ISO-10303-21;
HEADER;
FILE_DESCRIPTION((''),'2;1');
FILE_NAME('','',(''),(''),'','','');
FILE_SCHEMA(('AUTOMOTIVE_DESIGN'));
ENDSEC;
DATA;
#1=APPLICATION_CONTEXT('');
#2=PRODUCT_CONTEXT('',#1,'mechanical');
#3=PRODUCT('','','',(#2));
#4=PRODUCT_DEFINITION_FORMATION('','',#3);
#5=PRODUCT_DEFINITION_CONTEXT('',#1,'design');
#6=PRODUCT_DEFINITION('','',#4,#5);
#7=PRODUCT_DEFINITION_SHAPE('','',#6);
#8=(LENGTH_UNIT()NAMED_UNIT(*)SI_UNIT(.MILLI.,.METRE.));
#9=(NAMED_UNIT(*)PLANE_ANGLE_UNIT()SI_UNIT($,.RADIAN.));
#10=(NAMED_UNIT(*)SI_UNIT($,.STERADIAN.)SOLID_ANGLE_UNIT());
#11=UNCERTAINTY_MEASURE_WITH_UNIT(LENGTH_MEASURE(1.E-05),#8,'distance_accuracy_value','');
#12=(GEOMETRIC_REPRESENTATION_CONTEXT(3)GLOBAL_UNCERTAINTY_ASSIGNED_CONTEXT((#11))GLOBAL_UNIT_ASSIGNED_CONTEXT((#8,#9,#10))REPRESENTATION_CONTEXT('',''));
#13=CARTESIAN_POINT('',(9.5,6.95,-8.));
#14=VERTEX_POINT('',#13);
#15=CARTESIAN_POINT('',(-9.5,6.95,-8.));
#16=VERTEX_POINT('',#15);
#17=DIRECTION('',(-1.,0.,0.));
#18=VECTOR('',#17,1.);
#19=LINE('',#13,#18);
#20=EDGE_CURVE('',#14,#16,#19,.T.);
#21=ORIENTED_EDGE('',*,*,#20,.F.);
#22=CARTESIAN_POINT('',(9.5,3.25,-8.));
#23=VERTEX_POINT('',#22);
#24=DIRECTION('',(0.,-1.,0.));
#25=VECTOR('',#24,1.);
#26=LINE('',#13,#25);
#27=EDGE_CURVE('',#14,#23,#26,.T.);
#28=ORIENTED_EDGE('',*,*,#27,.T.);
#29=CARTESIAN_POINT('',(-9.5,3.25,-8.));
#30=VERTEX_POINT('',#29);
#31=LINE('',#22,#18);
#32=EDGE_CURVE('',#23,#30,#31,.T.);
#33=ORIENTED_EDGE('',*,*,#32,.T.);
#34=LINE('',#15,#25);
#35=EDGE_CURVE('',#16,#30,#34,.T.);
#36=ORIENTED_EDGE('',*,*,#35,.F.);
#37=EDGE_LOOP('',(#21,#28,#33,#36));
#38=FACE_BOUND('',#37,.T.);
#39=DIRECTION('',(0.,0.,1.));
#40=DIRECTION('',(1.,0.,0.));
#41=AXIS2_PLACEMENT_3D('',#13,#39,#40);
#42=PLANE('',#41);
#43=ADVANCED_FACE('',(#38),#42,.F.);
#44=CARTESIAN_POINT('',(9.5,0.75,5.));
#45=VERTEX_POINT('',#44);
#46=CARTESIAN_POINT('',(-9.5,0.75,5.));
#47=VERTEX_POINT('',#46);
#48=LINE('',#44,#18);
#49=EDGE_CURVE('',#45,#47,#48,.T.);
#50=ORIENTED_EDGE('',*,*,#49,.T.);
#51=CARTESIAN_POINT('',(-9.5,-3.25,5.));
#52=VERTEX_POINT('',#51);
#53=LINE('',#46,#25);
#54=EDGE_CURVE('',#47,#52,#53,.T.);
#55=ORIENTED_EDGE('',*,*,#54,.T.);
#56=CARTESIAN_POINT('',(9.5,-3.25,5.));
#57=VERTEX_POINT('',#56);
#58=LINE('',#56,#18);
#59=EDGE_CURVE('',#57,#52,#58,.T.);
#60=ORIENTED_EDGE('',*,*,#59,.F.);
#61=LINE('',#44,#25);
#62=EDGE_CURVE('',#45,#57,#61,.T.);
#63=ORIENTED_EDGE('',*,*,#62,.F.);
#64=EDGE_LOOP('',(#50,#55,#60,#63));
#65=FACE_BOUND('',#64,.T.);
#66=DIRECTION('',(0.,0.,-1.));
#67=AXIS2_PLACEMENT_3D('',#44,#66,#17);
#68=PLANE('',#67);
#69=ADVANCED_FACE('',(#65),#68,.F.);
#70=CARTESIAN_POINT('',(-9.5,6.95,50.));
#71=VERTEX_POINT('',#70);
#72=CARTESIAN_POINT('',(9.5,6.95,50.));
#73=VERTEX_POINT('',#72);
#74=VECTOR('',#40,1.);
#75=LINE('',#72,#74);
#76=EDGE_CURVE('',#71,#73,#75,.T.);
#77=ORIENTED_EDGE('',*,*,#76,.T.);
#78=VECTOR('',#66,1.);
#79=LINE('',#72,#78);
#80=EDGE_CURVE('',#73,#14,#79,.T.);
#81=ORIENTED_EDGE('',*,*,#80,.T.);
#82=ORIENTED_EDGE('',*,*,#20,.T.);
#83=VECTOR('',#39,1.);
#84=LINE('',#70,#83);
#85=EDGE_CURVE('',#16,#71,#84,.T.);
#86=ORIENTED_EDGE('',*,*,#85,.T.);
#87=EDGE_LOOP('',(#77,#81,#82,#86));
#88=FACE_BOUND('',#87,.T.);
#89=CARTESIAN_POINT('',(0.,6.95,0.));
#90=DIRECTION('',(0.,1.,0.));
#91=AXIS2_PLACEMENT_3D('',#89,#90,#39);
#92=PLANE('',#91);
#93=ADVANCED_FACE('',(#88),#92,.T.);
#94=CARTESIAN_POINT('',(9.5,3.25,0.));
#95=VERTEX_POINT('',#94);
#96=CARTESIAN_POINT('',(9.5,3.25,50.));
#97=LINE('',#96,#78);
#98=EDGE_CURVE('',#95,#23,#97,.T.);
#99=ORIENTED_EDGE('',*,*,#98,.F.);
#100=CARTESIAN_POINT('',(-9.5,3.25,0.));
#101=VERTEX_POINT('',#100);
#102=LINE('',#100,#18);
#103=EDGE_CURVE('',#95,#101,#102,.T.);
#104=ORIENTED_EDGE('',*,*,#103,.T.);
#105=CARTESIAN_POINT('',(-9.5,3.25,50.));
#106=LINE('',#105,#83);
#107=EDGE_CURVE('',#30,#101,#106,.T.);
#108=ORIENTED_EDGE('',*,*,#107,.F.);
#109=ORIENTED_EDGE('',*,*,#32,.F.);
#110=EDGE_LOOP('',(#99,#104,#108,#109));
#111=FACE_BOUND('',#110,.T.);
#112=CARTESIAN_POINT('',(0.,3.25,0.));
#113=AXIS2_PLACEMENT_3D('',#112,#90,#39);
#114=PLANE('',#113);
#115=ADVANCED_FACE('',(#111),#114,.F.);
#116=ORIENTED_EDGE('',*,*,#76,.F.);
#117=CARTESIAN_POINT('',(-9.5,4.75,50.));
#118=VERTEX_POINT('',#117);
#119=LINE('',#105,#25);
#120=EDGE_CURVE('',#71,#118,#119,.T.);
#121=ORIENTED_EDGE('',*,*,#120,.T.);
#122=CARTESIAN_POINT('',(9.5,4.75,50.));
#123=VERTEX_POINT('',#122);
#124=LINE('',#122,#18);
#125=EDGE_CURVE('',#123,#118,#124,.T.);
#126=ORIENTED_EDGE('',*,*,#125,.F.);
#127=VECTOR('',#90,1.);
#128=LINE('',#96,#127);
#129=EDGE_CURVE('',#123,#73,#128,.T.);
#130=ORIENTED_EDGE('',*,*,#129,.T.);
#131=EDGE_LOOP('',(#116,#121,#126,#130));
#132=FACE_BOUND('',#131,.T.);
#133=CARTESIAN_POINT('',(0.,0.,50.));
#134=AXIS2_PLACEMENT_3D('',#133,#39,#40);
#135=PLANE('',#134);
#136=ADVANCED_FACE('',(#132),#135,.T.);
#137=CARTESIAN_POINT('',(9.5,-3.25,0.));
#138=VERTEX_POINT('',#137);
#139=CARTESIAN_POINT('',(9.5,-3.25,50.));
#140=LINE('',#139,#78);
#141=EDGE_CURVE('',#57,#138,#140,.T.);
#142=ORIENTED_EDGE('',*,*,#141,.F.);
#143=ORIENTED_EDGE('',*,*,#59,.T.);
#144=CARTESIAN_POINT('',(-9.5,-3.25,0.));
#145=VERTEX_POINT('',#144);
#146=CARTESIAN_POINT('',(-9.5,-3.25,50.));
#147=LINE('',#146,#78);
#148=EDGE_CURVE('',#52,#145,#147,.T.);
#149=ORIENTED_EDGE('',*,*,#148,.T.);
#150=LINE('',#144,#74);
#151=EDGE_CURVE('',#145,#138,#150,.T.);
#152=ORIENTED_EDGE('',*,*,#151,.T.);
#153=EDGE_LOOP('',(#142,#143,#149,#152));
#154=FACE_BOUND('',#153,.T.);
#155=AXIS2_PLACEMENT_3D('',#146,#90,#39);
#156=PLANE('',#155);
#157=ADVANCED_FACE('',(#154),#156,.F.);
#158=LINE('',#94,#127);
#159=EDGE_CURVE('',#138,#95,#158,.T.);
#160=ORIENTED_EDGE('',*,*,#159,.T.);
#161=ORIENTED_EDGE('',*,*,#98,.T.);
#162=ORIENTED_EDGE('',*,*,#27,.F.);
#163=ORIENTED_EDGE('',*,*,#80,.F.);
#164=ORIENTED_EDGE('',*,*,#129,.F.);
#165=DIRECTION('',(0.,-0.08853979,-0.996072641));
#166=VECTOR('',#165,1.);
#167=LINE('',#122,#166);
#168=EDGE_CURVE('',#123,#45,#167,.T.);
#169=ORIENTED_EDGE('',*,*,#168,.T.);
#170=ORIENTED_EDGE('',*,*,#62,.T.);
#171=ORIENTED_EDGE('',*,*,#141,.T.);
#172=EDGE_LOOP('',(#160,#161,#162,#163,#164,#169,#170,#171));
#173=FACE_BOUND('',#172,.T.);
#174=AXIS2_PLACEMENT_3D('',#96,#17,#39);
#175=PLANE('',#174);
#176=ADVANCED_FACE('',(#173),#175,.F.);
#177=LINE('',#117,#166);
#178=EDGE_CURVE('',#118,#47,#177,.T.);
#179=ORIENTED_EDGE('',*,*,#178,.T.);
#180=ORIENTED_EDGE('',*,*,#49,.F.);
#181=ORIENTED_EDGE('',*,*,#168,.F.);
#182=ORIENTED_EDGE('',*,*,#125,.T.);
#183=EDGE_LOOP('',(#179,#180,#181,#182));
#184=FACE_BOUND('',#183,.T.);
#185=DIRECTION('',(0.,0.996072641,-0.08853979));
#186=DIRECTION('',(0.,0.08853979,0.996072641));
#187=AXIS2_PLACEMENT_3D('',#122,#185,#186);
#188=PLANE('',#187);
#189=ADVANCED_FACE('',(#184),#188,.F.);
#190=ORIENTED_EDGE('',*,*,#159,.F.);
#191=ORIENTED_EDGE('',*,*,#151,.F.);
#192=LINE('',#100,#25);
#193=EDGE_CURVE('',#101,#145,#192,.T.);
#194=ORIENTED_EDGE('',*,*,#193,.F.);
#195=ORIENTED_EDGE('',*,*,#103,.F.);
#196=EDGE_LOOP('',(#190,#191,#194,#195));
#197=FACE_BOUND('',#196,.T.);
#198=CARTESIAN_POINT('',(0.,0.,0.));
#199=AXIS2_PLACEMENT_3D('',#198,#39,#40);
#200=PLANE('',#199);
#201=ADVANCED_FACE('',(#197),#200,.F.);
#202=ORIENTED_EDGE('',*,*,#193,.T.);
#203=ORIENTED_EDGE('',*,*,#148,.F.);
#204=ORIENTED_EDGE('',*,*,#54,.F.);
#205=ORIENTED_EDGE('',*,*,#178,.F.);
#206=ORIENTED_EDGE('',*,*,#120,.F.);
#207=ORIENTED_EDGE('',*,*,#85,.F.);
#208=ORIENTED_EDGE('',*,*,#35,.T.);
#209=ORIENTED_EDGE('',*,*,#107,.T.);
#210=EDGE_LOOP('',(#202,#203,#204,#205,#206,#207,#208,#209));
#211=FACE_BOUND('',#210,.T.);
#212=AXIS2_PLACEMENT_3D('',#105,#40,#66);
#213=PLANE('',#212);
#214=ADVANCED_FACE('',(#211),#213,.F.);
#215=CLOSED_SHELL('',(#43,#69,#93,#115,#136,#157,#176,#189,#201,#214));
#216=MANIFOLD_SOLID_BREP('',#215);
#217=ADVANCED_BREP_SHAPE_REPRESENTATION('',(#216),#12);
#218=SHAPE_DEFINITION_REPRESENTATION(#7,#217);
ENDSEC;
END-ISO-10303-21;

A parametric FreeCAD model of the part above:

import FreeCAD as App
import Part
import Sketcher
from FreeCAD import Vector


def add_polygon(sketch, points):
    """Adds a closed chain of lines whose ends are joined by coincident constraints."""
    first, n = sketch.GeometryCount, len(points)
    for a, b in zip(points, points[1:] + points[:1]):
        sketch.addGeometry(Part.LineSegment(App.Vector(*a, 0), App.Vector(*b, 0)), False)
    for i in range(n):
        sketch.addConstraint(Sketcher.Constraint("Coincident", first + i, 2, first + (i + 1) % n, 1))

doc = App.newDocument("Part")
body = doc.addObject("PartDesign::Body", "Body")

# Sketch on XY plane
sketch1 = body.newObject("Sketcher::SketchObject", "Sketch")
sketch1.AttachmentSupport = (doc.getObject("XY_Plane"), [""])
sketch1.MapMode = "FlatFace"
add_polygon(sketch1, [(-9.5, 3.25), (-9.5, -3.25), (9.5, -3.25), (9.5, 3.25)])  # lines 0-3
sketch1.addConstraint(Sketcher.Constraint("Vertical", 0))
sketch1.addConstraint(Sketcher.Constraint("Horizontal", 1))
sketch1.addConstraint(Sketcher.Constraint("Vertical", 2))
sketch1.addConstraint(Sketcher.Constraint("Horizontal", 3))
sketch1.addConstraint(Sketcher.Constraint("Symmetric", 0, 2, 2, 2, -1, 1))
sketch1.addConstraint(Sketcher.Constraint("DistanceX", 1, 1, 1, 2, 19.0))
sketch1.addConstraint(Sketcher.Constraint("DistanceY", 0, 2, 0, 1, 6.5))
pad1 = body.newObject("PartDesign::Pad", "Pad")
pad1.Profile = sketch1
pad1.Length = 50

# Sketch on XZ plane
sketch2 = body.newObject("Sketcher::SketchObject", "Sketch001")
sketch2.AttachmentSupport = (doc.getObject("XZ_Plane"), [""])
sketch2.MapMode = "FlatFace"
sketch2.AttachmentOffset = App.Placement(Vector(0, 0, -3.25), App.Rotation())
add_polygon(sketch2, [(-9.5, -8), (-9.5, 50), (9.5, 50), (9.5, -8)])  # lines 0-3
sketch2.addConstraint(Sketcher.Constraint("Vertical", 0))
sketch2.addConstraint(Sketcher.Constraint("Horizontal", 1))
sketch2.addConstraint(Sketcher.Constraint("Vertical", 2))
sketch2.addConstraint(Sketcher.Constraint("Horizontal", 3))
sketch2.addConstraint(Sketcher.Constraint("DistanceX", 1, 1, 1, 2, 19.0))
sketch2.addConstraint(Sketcher.Constraint("DistanceY", 0, 1, 0, 2, 58.0))
sketch2.addConstraint(Sketcher.Constraint("DistanceY", -1, 1, 0, 2, 50.0))
sketch2.addConstraint(Sketcher.Constraint("DistanceX", 0, 2, -1, 1, 9.5))
pad2 = body.newObject("PartDesign::Pad", "Pad001")
pad2.Profile = sketch2
pad2.Length = 3.7
pad2.Reversed = True

# Sketch on YZ plane
sketch3 = body.newObject("Sketcher::SketchObject", "Sketch002")
sketch3.AttachmentSupport = (doc.getObject("YZ_Plane"), [""])
sketch3.MapMode = "FlatFace"
sketch3.AttachmentOffset = App.Placement(Vector(0, 0, -9.5), App.Rotation())
add_polygon(sketch3, [(-3.25, 50), (4.75, 50), (0.75, 5), (-3.25, 5)])  # lines 0-3
sketch3.addConstraint(Sketcher.Constraint("Horizontal", 0))
sketch3.addConstraint(Sketcher.Constraint("Horizontal", 2))
sketch3.addConstraint(Sketcher.Constraint("Vertical", 3))
sketch3.addConstraint(Sketcher.Constraint("DistanceX", 0, 1, 0, 2, 8.0))
sketch3.addConstraint(Sketcher.Constraint("DistanceX", 2, 2, 2, 1, 4.0))
sketch3.addConstraint(Sketcher.Constraint("DistanceY", 3, 1, 3, 2, 45.0))
sketch3.addConstraint(Sketcher.Constraint("DistanceY", -1, 1, 0, 2, 50.0))
sketch3.addConstraint(Sketcher.Constraint("DistanceX", -1, 1, 0, 2, 4.75))
pocket1 = body.newObject("PartDesign::Pocket", "Pocket")
pocket1.Profile = sketch3
pocket1.Type = "ThroughAll"
pocket1.Reversed = True

doc.recompute()
